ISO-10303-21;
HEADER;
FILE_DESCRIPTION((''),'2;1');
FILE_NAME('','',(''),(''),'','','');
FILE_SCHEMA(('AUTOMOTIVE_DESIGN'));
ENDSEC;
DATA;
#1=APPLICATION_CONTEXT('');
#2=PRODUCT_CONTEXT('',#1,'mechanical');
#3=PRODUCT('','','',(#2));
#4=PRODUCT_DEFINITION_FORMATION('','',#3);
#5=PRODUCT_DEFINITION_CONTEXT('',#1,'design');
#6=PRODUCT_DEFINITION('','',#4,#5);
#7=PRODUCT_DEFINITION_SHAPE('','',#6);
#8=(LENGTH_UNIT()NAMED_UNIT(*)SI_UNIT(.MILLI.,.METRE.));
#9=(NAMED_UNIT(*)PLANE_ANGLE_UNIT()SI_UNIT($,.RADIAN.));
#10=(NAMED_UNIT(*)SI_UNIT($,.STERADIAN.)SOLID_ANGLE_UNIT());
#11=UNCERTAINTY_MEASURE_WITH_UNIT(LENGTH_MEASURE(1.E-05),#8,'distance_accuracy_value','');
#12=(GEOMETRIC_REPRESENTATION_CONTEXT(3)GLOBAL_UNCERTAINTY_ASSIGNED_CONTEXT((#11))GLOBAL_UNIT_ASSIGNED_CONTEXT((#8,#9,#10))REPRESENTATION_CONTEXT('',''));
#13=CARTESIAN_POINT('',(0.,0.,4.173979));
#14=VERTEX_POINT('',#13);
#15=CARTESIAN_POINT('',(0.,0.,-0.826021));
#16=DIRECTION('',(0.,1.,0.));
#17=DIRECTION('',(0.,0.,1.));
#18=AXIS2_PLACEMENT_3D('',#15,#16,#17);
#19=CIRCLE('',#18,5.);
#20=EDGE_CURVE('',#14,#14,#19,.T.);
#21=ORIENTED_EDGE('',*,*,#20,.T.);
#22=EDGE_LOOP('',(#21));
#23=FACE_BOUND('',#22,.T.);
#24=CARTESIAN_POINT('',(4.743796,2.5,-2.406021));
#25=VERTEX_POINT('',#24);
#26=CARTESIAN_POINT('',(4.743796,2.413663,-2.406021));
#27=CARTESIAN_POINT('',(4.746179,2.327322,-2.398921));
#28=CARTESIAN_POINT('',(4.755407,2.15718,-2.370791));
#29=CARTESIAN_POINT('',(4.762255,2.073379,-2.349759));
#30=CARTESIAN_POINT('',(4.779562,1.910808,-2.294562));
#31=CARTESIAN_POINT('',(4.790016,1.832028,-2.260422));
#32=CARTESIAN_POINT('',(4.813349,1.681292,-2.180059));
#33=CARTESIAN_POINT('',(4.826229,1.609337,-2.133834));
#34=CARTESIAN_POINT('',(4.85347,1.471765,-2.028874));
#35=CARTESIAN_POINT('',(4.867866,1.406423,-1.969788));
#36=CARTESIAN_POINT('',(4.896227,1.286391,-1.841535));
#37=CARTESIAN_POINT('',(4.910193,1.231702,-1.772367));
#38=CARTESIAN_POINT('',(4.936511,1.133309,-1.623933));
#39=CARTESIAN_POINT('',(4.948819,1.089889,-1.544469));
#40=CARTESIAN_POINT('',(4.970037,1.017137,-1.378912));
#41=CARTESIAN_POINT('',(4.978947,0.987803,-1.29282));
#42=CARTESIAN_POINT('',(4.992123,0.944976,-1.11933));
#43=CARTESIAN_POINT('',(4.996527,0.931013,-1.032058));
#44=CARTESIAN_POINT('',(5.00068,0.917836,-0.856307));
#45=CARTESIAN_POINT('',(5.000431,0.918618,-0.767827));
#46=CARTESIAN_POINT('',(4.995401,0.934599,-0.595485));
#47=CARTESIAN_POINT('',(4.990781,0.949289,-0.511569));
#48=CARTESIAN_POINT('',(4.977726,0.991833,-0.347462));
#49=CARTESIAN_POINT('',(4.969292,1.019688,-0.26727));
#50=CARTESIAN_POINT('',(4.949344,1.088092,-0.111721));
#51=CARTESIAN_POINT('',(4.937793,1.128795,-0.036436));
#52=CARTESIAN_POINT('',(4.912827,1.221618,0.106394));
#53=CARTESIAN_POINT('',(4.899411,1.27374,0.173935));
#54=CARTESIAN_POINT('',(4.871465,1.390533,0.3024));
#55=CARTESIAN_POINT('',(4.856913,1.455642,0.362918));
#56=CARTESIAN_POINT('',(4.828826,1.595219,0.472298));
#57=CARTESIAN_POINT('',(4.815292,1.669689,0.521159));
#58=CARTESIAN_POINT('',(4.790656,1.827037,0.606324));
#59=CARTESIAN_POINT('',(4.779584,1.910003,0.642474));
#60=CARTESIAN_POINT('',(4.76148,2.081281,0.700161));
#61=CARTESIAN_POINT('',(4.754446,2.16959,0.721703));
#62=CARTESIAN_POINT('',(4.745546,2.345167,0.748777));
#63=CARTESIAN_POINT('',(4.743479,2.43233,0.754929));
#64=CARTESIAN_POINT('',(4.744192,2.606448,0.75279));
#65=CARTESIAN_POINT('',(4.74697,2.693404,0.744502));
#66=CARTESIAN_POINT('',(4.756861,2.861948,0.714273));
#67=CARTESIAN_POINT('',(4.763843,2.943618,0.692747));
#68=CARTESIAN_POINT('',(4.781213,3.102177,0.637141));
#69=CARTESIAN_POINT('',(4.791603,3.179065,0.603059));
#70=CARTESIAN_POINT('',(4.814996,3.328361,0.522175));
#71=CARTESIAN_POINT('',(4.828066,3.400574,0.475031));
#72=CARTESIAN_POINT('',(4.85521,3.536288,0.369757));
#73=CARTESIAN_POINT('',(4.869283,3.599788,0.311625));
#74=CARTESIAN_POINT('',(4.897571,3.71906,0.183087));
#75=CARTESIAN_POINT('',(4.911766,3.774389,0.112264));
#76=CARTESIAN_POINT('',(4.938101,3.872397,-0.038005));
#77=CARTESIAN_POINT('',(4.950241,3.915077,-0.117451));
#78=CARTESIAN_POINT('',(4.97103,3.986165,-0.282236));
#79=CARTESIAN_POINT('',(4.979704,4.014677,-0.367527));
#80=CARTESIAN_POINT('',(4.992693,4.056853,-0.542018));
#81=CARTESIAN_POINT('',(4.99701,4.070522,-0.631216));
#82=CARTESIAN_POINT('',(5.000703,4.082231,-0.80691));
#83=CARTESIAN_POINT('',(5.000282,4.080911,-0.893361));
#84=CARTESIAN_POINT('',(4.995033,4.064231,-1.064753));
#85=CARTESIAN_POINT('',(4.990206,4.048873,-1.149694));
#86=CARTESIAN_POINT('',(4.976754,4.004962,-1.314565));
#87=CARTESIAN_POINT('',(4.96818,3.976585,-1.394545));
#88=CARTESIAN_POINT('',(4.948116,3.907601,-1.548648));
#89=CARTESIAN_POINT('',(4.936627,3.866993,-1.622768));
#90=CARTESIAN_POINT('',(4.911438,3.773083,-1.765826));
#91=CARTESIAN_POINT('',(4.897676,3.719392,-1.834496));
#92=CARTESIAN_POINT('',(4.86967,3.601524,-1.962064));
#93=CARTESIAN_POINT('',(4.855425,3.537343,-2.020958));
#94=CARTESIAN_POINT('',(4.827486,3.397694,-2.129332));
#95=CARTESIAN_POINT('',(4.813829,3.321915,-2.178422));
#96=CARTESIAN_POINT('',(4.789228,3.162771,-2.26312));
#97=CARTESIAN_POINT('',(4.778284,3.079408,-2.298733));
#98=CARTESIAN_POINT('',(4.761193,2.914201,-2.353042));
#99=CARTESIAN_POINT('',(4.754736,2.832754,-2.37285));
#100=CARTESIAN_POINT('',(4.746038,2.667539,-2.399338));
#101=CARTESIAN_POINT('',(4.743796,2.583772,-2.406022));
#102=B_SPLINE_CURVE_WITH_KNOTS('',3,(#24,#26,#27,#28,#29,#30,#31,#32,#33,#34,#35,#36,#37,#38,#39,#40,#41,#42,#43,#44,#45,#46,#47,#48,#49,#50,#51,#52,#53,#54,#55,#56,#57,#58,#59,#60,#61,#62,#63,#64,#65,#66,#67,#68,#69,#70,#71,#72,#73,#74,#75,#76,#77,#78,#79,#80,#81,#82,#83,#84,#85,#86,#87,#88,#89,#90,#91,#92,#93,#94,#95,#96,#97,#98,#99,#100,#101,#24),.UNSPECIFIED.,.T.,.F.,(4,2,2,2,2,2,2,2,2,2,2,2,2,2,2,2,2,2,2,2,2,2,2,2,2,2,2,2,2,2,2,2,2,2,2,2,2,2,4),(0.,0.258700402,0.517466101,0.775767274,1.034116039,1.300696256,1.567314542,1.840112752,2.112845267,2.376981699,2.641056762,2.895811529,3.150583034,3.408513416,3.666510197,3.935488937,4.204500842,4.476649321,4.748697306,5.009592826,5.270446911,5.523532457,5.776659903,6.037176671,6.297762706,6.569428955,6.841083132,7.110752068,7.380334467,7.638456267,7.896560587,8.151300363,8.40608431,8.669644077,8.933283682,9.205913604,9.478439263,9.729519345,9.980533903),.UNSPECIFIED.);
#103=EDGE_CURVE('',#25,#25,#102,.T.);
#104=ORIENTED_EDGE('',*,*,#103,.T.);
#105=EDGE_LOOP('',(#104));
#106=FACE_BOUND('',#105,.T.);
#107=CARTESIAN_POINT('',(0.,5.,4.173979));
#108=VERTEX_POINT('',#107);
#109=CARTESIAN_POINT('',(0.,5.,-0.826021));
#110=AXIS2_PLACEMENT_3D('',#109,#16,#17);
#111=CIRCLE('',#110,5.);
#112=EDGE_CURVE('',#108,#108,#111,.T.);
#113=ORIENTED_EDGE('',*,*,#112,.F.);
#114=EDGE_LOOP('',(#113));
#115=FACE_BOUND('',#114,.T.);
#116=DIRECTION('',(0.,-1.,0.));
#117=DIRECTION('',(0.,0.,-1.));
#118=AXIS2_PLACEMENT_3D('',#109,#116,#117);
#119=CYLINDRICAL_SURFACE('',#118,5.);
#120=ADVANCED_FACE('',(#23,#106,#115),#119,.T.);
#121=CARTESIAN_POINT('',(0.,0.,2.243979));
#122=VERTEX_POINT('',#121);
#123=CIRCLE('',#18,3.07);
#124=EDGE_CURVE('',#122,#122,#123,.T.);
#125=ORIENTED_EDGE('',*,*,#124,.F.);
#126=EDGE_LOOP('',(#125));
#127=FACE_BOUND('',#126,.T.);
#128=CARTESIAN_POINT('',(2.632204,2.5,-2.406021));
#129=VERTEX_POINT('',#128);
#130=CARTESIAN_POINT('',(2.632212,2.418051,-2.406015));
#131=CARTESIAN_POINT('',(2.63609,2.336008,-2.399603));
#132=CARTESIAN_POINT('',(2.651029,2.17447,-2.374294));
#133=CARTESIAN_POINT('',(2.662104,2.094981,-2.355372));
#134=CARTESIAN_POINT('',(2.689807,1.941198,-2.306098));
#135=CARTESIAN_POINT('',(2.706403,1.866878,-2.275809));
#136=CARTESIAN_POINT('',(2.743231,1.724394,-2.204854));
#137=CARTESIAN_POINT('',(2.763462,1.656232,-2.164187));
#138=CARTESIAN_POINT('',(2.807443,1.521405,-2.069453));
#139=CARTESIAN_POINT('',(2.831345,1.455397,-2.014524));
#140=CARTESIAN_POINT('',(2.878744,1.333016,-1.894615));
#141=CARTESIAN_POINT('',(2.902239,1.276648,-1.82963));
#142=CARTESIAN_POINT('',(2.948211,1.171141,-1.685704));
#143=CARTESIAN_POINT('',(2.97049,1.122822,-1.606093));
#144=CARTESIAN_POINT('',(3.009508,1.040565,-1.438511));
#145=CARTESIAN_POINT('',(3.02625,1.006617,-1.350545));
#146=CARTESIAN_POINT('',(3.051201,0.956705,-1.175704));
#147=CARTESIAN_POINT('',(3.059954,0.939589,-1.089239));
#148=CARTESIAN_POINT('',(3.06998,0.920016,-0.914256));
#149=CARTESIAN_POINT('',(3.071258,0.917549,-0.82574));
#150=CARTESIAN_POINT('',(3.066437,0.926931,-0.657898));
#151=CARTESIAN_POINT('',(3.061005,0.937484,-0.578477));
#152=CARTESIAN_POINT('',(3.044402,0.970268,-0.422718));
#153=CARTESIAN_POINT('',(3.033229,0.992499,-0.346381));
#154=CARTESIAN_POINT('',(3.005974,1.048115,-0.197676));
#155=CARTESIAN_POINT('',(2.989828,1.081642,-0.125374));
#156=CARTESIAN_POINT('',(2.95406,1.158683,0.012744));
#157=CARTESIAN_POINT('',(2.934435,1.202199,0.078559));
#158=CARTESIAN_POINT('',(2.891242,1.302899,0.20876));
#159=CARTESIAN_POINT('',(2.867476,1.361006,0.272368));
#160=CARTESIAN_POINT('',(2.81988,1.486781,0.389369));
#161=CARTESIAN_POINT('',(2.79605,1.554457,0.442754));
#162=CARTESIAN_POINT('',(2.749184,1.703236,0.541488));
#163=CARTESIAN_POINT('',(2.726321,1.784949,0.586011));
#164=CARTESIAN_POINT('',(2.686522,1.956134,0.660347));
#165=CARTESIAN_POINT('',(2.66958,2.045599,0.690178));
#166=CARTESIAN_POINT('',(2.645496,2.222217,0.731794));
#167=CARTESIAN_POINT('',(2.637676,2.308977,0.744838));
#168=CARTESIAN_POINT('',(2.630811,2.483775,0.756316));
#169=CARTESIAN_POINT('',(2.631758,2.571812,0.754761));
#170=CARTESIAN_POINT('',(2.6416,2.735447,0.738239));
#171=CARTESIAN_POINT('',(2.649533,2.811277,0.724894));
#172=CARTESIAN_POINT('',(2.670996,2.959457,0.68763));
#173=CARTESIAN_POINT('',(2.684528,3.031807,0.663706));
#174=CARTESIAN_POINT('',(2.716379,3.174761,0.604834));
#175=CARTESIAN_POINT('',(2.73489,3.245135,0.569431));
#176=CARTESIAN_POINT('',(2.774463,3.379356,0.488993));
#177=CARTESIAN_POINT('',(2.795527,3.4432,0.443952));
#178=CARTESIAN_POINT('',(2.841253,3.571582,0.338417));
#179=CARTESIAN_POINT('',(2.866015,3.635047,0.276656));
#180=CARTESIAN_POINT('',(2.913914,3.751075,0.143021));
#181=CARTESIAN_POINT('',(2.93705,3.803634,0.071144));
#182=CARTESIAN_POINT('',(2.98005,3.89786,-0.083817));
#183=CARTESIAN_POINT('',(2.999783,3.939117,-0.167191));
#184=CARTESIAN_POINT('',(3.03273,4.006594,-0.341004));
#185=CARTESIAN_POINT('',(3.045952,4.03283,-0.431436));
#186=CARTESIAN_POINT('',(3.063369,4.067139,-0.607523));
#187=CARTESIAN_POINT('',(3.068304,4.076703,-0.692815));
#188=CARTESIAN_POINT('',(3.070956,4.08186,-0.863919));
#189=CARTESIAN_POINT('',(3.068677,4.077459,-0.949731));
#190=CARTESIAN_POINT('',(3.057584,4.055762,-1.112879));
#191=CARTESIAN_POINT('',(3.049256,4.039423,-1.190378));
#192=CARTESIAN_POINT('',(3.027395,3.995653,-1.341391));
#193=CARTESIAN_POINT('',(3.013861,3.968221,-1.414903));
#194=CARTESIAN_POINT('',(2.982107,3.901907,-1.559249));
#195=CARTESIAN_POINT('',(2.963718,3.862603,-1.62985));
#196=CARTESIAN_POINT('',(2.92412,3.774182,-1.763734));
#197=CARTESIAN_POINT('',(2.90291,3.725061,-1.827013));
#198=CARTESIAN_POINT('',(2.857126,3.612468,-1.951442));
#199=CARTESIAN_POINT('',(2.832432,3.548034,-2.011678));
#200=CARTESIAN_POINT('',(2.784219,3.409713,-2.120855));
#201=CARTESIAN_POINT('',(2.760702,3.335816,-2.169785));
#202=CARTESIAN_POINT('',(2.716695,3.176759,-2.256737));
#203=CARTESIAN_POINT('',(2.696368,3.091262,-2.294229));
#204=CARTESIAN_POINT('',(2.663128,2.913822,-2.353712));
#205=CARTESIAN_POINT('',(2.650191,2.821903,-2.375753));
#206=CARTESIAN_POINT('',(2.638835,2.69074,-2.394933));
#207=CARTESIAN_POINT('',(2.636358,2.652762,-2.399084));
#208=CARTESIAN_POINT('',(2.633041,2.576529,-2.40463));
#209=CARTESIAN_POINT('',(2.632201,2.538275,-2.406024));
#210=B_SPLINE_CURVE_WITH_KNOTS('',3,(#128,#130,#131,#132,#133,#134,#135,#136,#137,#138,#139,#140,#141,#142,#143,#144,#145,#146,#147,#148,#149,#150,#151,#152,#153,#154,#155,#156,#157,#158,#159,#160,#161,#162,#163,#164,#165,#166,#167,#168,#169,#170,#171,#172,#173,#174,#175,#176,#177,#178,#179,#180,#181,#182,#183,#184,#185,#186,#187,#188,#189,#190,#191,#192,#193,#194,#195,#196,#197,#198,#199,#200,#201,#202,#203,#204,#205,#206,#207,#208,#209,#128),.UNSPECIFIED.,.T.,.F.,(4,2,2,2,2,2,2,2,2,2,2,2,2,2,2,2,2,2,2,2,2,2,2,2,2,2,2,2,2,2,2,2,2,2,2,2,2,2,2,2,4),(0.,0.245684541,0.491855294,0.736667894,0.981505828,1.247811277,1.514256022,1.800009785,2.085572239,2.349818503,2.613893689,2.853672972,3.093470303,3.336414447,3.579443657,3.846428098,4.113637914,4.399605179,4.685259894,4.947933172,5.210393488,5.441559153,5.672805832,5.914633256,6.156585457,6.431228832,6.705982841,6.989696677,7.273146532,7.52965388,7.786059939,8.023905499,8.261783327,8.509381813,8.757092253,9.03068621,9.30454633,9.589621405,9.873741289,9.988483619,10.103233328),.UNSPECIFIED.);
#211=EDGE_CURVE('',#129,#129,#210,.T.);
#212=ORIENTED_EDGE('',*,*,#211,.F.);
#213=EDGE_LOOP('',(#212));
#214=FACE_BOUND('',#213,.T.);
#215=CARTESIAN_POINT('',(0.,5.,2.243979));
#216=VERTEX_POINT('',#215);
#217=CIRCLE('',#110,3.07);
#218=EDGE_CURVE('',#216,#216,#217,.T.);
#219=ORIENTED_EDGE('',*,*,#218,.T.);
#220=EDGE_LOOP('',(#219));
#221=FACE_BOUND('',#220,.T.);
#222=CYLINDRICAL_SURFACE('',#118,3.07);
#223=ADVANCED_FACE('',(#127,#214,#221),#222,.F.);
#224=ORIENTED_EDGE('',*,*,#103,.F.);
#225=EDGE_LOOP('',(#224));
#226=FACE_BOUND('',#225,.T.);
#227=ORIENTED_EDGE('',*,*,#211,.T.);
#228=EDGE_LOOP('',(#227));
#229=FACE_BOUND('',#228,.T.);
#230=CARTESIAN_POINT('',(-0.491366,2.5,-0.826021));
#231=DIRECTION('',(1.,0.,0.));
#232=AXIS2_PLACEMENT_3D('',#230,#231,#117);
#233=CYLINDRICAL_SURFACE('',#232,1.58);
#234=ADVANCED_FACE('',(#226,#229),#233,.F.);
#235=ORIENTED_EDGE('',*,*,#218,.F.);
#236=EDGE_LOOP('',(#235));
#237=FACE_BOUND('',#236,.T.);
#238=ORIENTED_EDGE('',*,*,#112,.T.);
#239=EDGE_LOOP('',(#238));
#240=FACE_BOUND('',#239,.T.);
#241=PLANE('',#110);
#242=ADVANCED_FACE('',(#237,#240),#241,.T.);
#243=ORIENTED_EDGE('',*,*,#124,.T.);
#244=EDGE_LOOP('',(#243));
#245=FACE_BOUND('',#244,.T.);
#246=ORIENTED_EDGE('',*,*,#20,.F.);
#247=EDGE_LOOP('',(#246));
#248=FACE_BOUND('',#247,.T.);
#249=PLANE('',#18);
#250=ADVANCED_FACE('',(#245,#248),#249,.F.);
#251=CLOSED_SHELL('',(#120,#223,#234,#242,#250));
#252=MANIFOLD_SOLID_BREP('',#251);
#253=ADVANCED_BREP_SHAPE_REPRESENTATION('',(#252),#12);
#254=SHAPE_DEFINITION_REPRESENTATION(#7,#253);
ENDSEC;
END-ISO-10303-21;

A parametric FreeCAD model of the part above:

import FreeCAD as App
import Part
import Sketcher

V = App.Vector
Q = App.Units.Quantity

doc = App.newDocument("Part")
body = doc.addObject("PartDesign::Body", "Body")

sketch1 = doc.addObject("Sketcher::SketchObject", "Sketch")
body.addObject(sketch1)
sketch1.AttachmentSupport = (doc.XZ_Plane, [""])
sketch1.MapMode = "FlatFace"
sketch1.addGeometry(Part.Circle(V(0, -0.8, 0), V(0, 0, 1), 5), False)
sketch1.addGeometry(Part.Circle(V(0, -0.8, 0), V(0, 0, 1), 3.1), False)
sketch1.addConstraint(Sketcher.Constraint("Coincident", 1, 3, 0, 3))
sketch1.addConstraint(Sketcher.Constraint("PointOnObject", 0, 3, -2))
sketch1.addConstraint(Sketcher.Constraint("Diameter", 0, Q("10 mm")))
sketch1.addConstraint(Sketcher.Constraint("Diameter", 1, Q("6.14 mm")))
sketch1.addConstraint(Sketcher.Constraint("DistanceY", 0, 3, -1, 1, Q("0.826021 mm")))
pad1 = doc.addObject("PartDesign::Pad", "Pad")
body.addObject(pad1)
pad1.Profile = sketch1
pad1.Length = 5
pad1.Reversed = True
body2 = doc.addObject("PartDesign::Body", "Body001")

sketch2 = doc.addObject("Sketcher::SketchObject", "Sketch001")
body2.addObject(sketch2)
sketch2.AttachmentSupport = (doc.getObject("XZ_Plane001"), [""])
sketch2.MapMode = "FlatFace"
sketch2.AttachmentOffset = App.Placement(V(0, 0, -5), App.Rotation())
sketch2.addGeometry(Part.LineSegment(V(-5.8, -2.3, 0), V(-5.8, 1.1, 0)), False)
sketch2.addGeometry(Part.LineSegment(V(-5.8, 1.1, 0), V(5.5, 1.1, 0)), False)
sketch2.addGeometry(Part.LineSegment(V(5.5, 1.1, 0), V(5.5, -2.3, 0)), False)
sketch2.addGeometry(Part.LineSegment(V(5.5, -2.3, 0), V(-5.8, -2.3, 0)), False)
sketch2.addConstraint(Sketcher.Constraint("Coincident", 0, 2, 1, 1))
sketch2.addConstraint(Sketcher.Constraint("Coincident", 1, 2, 2, 1))
sketch2.addConstraint(Sketcher.Constraint("Coincident", 2, 2, 3, 1))
sketch2.addConstraint(Sketcher.Constraint("Coincident", 3, 2, 0, 1))
sketch2.addConstraint(Sketcher.Constraint("Vertical", 0))
sketch2.addConstraint(Sketcher.Constraint("Horizontal", 1))
sketch2.addConstraint(Sketcher.Constraint("Vertical", 2))
sketch2.addConstraint(Sketcher.Constraint("Horizontal", 3))
sketch2.addConstraint(Sketcher.Constraint("DistanceX", 1, 1, 1, 2, Q("11.338544 mm")))
sketch2.addConstraint(Sketcher.Constraint("DistanceY", 0, 1, 0, 2, Q("3.370147 mm")))
sketch2.addConstraint(Sketcher.Constraint("DistanceX", 0, 2, -1, 1, Q("5.82991 mm")))
sketch2.addConstraint(Sketcher.Constraint("DistanceY", 2, 2, -1, 1, Q("2.314741 mm")))
pad2 = doc.addObject("PartDesign::Pad", "Pad001")
body2.addObject(pad2)
pad2.Profile = sketch2
pad2.Length = 7
body3 = doc.addObject("PartDesign::Body", "Body002")

sketch3 = doc.addObject("Sketcher::SketchObject", "Sketch002")
body3.addObject(sketch3)
sketch3.AttachmentSupport = (doc.getObject("YZ_Plane002"), [""])
sketch3.MapMode = "FlatFace"
sketch3.AttachmentOffset = App.Placement(V(0, 0, 5.508634), App.Rotation())
sketch3.addGeometry(Part.Circle(V(2.5, -0.8, 0), V(0, 0, 1), 1.6), False)
sketch3.addConstraint(Sketcher.Constraint("Diameter", 0, Q("3.16 mm")))
sketch3.addConstraint(Sketcher.Constraint("DistanceX", -1, 1, 0, 3, Q("2.5 mm")))
sketch3.addConstraint(Sketcher.Constraint("DistanceY", 0, 3, -1, 1, Q("0.826021 mm")))
pad3 = doc.addObject("PartDesign::Pad", "Pad002")
body3.addObject(pad3)
pad3.Profile = sketch3
pad3.Length = 6
pad3.Reversed = True
doc.recompute()

boolean = doc.addObject("PartDesign::Boolean", "Boolean")
body.addObject(boolean)
boolean.Type = "Cut"
boolean.addObjects([body3])
body2.Visibility = False

doc.recompute()
